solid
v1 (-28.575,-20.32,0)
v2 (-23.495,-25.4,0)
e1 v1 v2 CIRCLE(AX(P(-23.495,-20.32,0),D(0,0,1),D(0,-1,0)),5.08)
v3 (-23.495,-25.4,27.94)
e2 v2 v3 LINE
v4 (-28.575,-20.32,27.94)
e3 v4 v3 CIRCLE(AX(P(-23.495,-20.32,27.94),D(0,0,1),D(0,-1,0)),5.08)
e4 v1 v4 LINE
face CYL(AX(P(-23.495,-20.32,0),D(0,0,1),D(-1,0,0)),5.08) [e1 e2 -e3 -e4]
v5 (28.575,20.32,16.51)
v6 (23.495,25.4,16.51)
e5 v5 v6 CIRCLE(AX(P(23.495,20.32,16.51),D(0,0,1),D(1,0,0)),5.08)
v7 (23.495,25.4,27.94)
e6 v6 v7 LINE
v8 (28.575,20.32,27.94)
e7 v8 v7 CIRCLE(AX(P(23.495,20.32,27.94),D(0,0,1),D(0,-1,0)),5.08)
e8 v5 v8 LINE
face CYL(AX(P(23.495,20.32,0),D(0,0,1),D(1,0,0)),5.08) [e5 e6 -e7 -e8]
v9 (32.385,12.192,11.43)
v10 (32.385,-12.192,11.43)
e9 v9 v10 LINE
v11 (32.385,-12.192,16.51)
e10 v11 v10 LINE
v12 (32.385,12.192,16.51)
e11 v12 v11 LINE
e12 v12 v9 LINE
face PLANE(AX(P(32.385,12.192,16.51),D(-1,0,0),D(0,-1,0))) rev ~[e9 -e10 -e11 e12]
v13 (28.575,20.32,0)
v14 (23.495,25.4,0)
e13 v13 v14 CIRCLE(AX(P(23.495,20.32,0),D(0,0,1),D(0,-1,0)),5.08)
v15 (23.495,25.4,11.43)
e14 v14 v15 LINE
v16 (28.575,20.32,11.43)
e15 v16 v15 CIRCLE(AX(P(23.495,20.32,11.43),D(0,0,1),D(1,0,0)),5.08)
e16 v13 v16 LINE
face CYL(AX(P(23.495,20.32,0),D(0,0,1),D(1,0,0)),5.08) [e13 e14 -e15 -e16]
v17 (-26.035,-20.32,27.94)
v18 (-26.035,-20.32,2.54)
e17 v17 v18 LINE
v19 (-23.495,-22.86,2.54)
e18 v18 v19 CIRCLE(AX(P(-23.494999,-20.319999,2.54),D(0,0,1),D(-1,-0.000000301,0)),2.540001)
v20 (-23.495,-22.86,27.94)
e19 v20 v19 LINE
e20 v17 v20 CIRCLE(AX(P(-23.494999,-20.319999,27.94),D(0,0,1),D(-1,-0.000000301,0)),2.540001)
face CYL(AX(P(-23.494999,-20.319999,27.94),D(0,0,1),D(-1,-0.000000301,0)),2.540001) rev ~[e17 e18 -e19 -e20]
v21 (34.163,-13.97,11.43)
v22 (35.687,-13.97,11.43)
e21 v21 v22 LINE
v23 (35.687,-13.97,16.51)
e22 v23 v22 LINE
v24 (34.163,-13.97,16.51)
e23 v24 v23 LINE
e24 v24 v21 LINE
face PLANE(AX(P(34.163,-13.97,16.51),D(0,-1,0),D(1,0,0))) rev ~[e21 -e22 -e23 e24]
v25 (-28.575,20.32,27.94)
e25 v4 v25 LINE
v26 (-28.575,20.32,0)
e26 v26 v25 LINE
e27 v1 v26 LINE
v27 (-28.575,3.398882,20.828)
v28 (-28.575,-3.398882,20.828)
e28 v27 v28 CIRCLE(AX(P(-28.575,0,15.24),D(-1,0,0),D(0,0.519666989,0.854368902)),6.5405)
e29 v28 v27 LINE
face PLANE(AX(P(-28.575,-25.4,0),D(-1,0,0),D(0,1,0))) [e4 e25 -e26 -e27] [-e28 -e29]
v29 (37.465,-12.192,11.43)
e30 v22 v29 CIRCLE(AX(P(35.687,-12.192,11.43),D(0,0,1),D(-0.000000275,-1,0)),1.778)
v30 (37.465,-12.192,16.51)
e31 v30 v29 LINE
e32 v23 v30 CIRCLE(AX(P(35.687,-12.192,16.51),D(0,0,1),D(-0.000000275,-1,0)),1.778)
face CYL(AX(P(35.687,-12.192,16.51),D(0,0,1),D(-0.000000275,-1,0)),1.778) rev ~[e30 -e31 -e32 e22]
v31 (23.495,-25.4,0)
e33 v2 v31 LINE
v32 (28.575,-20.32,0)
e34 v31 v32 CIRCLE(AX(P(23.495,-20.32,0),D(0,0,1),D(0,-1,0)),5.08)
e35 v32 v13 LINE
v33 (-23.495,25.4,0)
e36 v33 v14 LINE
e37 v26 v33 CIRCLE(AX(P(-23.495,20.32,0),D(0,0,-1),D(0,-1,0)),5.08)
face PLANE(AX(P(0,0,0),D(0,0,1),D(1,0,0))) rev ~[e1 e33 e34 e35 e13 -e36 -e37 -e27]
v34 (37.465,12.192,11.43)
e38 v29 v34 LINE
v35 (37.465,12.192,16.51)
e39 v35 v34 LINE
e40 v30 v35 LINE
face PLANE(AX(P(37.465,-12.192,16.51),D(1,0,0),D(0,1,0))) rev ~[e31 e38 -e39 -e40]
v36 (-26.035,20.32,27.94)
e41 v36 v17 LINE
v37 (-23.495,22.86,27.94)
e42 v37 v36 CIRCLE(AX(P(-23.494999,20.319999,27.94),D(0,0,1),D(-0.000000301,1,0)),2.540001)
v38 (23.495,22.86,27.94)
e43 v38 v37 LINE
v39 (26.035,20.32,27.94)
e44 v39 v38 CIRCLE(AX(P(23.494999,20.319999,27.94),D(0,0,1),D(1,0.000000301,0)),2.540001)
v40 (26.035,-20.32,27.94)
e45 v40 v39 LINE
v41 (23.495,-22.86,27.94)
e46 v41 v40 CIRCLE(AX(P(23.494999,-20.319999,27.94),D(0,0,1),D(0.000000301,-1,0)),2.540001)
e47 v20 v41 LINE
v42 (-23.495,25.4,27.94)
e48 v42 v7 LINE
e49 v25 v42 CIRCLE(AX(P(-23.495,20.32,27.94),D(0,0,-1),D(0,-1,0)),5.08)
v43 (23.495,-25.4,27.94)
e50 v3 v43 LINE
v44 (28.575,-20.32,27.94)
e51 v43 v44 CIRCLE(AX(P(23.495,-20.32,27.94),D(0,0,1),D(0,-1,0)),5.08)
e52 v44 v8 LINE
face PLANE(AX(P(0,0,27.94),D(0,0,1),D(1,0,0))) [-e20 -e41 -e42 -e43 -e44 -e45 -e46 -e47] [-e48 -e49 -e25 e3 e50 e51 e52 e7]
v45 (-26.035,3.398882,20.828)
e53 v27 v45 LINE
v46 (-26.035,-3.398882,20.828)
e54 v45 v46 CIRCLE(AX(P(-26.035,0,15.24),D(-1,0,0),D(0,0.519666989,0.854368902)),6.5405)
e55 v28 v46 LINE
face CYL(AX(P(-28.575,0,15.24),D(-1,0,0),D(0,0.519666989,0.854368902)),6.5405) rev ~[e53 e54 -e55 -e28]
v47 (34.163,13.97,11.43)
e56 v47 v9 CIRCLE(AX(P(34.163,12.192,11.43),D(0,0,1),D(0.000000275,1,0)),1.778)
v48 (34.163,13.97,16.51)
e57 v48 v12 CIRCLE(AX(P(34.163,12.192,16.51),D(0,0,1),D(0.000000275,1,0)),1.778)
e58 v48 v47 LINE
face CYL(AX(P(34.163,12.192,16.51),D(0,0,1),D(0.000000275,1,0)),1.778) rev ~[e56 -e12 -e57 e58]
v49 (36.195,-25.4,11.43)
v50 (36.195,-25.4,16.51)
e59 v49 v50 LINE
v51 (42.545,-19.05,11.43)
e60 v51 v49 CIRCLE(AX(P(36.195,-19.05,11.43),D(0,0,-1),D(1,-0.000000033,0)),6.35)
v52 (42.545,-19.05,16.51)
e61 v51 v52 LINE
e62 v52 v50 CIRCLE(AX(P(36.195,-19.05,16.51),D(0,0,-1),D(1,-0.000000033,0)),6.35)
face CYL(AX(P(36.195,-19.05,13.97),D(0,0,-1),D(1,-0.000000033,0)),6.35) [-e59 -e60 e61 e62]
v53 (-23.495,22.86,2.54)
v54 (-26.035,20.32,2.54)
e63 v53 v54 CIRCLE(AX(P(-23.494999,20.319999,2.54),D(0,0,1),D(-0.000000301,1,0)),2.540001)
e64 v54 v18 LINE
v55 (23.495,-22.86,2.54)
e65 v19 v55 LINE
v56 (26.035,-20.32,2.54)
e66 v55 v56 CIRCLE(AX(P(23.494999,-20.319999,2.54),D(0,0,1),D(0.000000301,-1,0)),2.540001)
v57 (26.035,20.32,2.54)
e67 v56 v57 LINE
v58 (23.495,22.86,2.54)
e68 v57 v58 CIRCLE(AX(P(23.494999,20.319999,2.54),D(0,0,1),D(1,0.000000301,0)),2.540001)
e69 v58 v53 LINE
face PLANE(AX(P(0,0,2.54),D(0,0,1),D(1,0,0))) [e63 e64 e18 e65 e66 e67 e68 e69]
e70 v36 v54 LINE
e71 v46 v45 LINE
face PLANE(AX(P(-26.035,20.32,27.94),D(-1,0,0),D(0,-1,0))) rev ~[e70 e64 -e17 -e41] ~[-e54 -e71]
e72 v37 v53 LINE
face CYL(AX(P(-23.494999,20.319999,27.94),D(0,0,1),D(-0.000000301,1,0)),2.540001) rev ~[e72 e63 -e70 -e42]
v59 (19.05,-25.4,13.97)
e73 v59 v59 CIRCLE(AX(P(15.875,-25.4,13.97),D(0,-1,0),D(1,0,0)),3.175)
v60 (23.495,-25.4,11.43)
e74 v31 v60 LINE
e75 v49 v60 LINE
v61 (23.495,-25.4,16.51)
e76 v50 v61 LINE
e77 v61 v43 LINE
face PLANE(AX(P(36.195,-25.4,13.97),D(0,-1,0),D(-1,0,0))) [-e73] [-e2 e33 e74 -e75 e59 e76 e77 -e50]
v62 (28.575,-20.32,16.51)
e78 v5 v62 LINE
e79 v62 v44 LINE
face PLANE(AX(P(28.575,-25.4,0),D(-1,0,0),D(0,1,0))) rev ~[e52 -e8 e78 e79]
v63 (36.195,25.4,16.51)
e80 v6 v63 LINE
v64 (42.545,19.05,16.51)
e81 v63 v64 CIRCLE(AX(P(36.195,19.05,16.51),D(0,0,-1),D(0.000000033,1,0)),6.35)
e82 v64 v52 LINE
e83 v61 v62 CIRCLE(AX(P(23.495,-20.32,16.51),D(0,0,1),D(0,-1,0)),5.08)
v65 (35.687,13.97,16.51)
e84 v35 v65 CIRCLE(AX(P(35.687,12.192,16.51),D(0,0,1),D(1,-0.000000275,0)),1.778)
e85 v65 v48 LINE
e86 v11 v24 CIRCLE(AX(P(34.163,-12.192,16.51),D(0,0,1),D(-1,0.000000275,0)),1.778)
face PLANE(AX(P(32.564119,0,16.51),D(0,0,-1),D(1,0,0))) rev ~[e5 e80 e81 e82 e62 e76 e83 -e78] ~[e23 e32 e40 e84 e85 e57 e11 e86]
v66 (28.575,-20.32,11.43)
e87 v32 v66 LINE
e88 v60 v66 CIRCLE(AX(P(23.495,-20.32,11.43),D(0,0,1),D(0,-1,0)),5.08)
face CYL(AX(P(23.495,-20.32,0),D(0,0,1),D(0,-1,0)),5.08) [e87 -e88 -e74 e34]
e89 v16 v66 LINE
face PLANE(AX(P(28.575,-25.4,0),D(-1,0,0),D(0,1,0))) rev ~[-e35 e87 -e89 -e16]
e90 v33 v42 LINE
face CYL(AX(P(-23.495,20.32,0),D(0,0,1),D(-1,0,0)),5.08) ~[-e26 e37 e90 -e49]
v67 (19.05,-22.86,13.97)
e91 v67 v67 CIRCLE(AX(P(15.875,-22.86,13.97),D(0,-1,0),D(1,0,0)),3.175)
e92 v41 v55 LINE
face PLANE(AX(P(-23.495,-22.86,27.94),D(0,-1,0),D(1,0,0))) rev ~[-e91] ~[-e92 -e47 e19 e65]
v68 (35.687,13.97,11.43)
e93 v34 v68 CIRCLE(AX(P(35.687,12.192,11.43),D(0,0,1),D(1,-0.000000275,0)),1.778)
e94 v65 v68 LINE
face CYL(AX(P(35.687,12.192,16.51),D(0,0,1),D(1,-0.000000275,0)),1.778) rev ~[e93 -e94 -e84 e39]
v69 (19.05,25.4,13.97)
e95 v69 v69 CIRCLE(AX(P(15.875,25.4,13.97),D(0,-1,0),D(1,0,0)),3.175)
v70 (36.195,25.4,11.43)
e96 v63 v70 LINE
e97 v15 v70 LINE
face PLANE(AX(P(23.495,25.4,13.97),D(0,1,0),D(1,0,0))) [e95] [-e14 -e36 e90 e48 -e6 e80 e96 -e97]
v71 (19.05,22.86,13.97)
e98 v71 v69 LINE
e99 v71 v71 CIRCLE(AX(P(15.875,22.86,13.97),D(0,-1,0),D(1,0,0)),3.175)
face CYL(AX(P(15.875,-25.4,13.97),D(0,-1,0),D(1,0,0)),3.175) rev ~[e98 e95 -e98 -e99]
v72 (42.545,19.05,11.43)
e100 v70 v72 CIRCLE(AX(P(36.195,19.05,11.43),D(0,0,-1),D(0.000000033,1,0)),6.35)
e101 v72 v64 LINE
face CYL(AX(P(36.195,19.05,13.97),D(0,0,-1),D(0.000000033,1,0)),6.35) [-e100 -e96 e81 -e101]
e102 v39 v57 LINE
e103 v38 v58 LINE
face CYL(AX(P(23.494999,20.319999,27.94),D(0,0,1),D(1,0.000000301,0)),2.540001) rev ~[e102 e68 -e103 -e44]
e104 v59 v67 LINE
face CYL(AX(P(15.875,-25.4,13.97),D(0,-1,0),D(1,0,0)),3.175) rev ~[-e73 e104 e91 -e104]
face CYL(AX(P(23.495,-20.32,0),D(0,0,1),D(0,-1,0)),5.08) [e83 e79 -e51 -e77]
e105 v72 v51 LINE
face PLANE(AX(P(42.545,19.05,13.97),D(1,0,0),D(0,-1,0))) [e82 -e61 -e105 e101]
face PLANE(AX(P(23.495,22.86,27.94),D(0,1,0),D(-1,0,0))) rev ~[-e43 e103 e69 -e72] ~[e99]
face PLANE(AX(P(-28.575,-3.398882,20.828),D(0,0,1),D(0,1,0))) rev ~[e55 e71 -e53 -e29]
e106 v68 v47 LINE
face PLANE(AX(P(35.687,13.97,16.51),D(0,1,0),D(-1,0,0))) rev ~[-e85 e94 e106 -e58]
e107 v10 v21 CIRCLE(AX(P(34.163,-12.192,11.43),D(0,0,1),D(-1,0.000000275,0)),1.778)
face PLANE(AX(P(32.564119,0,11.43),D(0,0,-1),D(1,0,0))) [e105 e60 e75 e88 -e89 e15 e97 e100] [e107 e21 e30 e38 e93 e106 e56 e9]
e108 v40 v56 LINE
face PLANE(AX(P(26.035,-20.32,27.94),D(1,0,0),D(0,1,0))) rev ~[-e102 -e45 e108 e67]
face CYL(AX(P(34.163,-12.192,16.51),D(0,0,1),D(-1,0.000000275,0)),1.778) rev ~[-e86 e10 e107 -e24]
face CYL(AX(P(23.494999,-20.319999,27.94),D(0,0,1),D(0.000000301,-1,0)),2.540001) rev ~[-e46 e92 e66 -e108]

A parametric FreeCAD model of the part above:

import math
import FreeCAD as App
import Part
import Sketcher
Q = App.Units.Quantity


def edges_at(feature, points):
    """Names of the edges that pass closest to the given points."""
    edges = feature.Shape.Edges
    near = lambda p: min(range(len(edges)), key=lambda i: edges[i].distToShape(Part.Vertex(*p))[0])
    return sorted({f"Edge{near(p) + 1}" for p in points})

doc = App.newDocument("Part")
params = doc.addObject("Spreadsheet::Sheet", "Params")
for row, (alias, value) in enumerate([
    ("sketch1_height", "2 in"),
    ("sketch1_width", "2.25 in"),
    ("pad1_length", "1.1 in"),
    ("fillet_radius", "0.2 in"),
    ("sketch2_height", "2 in"),
    ("sketch2_radius", "0.25 in"),
    ("sketch2_width", "0.5 in"),
    ("pad2_length", "0.2 in"),
    ("sketch3_radius", "0.1 in"),
    ("sketch3_height", "1.6 in"),
    ("sketch3_width", "1.85 in"),
    ("pocket1_length", "1 in"),
    ("pocket2_length", "0.1 in"),
    ("sketch5_diameter", "0.25 in"),
    ("sketch6_radius", "0.07 in"),
    ("sketch6_width", "0.06 in"),
    ("sketch6_height", "0.96 in"),
], start=1):
    params.set(f"A{row}", alias)
    params.set(f"B{row}", "=" + value)
    params.setAlias(f"B{row}", alias)

body = doc.addObject("PartDesign::Body", "Body")

# Sketch on XY plane
sketch1 = body.newObject("Sketcher::SketchObject", "Sketch")
sketch1.AttachmentSupport = (doc.getObject("XY_Plane"), [""])
sketch1.MapMode = "FlatFace"
sketch1.addGeometry(Part.LineSegment(App.Vector(-29, 25, 0), App.Vector(-29, -25, 0)), False)
sketch1.addGeometry(Part.LineSegment(App.Vector(-29, -25, 0), App.Vector(29, -25, 0)), False)
sketch1.addGeometry(Part.LineSegment(App.Vector(29, -25, 0), App.Vector(29, 25, 0)), False)
sketch1.addGeometry(Part.LineSegment(App.Vector(29, 25, 0), App.Vector(-29, 25, 0)), False)
sketch1.addConstraint(Sketcher.Constraint("Coincident", 0, 2, 1, 1))
sketch1.addConstraint(Sketcher.Constraint("Coincident", 1, 2, 2, 1))
sketch1.addConstraint(Sketcher.Constraint("Coincident", 2, 2, 3, 1))
sketch1.addConstraint(Sketcher.Constraint("Coincident", 3, 2, 0, 1))
sketch1.addConstraint(Sketcher.Constraint("Vertical", 0))
sketch1.addConstraint(Sketcher.Constraint("Horizontal", 1))
sketch1.addConstraint(Sketcher.Constraint("Vertical", 2))
sketch1.addConstraint(Sketcher.Constraint("Horizontal", 3))
sketch1.addConstraint(Sketcher.Constraint("Symmetric", 0, 2, 2, 2, -1, 1))
sketch1.addConstraint(Sketcher.Constraint("DistanceY", 0, 2, 0, 1, Q("2 in")))
sketch1.addConstraint(Sketcher.Constraint("DistanceX", 1, 1, 1, 2, Q("2.25 in")))
sketch1.setExpression("Constraints[9]", "Params.sketch1_height")
sketch1.setExpression("Constraints[10]", "Params.sketch1_width")
pad1 = body.newObject("PartDesign::Pad", "Pad")
pad1.Profile = sketch1
pad1.setExpression("Length", "Params.pad1_length")
doc.recompute()

fillet = body.newObject("PartDesign::Fillet", "Fillet")
fillet.Base = (pad1, edges_at(pad1, [
    (-28.575, 25.4, 13.97),
    (28.575, 25.4, 13.97),
    (28.575, -25.4, 13.97),
    (-28.575, -25.4, 13.97),
]))
fillet.setExpression("Radius", "Params.fillet_radius")

# Sketch on XY plane
sketch2 = body.newObject("Sketcher::SketchObject", "Sketch001")
sketch2.AttachmentSupport = (doc.getObject("XY_Plane"), [""])
sketch2.MapMode = "FlatFace"
sketch2.AttachmentOffset = App.Placement(App.Vector(0, 0, 0.55 * 25.4), App.Rotation())
sketch2.addGeometry(Part.LineSegment(App.Vector(36, -25, 0), App.Vector(23, -25, 0)), False)
sketch2.addGeometry(Part.LineSegment(App.Vector(23, -25, 0), App.Vector(23, 25, 0)), False)
sketch2.addGeometry(Part.LineSegment(App.Vector(23, 25, 0), App.Vector(36, 25, 0)), False)
sketch2.addGeometry(Part.ArcOfCircle(Part.Circle(App.Vector(36, 19, 0), App.Vector(0, 0, 1), 6), math.radians(0), math.radians(90)), False)
sketch2.addGeometry(Part.LineSegment(App.Vector(43, 19, 0), App.Vector(43, -19, 0)), False)
sketch2.addGeometry(Part.ArcOfCircle(Part.Circle(App.Vector(36, -19, 0), App.Vector(0, 0, 1), 6), math.radians(-90), math.radians(0)), False)
sketch2.addConstraint(Sketcher.Constraint("Coincident", 0, 2, 1, 1))
sketch2.addConstraint(Sketcher.Constraint("Coincident", 1, 2, 2, 1))
sketch2.addConstraint(Sketcher.Constraint("Tangent", 2, 2, 3, 2))
sketch2.addConstraint(Sketcher.Constraint("Tangent", 3, 1, 4, 1))
sketch2.addConstraint(Sketcher.Constraint("Tangent", 4, 2, 5, 2))
sketch2.addConstraint(Sketcher.Constraint("Tangent", 5, 1, 0, 1))
sketch2.addConstraint(Sketcher.Constraint("Horizontal", 0))
sketch2.addConstraint(Sketcher.Constraint("Vertical", 1))
sketch2.addConstraint(Sketcher.Constraint("Horizontal", 2))
sketch2.addConstraint(Sketcher.Constraint("Vertical", 4))
sketch2.addConstraint(Sketcher.Constraint("Equal", 3, 5))
sketch2.addConstraint(Sketcher.Constraint("DistanceY", 1, 1, 1, 2, Q("2 in")))
sketch2.addConstraint(Sketcher.Constraint("Radius", 3, Q("0.25 in")))
sketch2.addConstraint(Sketcher.Constraint("DistanceX", 0, 2, 0, 1, Q("0.5 in")))
sketch2.addConstraint(Sketcher.Constraint("DistanceY", 0, 2, -1, 1, Q("1 in")))
sketch2.addConstraint(Sketcher.Constraint("DistanceX", -1, 1, 3, 3, Q("1.425 in")))
sketch2.setExpression("Constraints[11]", "Params.sketch2_height")
sketch2.setExpression("Constraints[12]", "Params.sketch2_radius")
sketch2.setExpression("Constraints[13]", "Params.sketch2_width")
pad2 = body.newObject("PartDesign::Pad", "Pad001")
pad2.Profile = sketch2
pad2.setExpression("Length", "Params.pad2_length")
pad2.Midplane = True

# Sketch on XY plane
sketch3 = body.newObject("Sketcher::SketchObject", "Sketch002")
sketch3.AttachmentSupport = (doc.getObject("XY_Plane"), [""])
sketch3.MapMode = "FlatFace"
sketch3.AttachmentOffset = App.Placement(App.Vector(0, 0, 1.1 * 25.4), App.Rotation())
sketch3.addGeometry(Part.ArcOfCircle(Part.Circle(App.Vector(-23.5, -20.3, 0), App.Vector(0, 0, 1), 2.5), math.radians(-180), math.radians(-90)), False)
sketch3.addGeometry(Part.LineSegment(App.Vector(-23.5, -22.9, 0), App.Vector(23.5, -22.9, 0)), False)
sketch3.addGeometry(Part.ArcOfCircle(Part.Circle(App.Vector(23.5, -20.3, 0), App.Vector(0, 0, 1), 2.5), math.radians(-90), math.radians(0)), False)
sketch3.addGeometry(Part.LineSegment(App.Vector(26, -20.3, 0), App.Vector(26, 20.3, 0)), False)
sketch3.addGeometry(Part.ArcOfCircle(Part.Circle(App.Vector(23.5, 20.3, 0), App.Vector(0, 0, 1), 2.5), math.radians(0), math.radians(90)), False)
sketch3.addGeometry(Part.LineSegment(App.Vector(23.5, 22.9, 0), App.Vector(-23.5, 22.9, 0)), False)
sketch3.addGeometry(Part.ArcOfCircle(Part.Circle(App.Vector(-23.5, 20.3, 0), App.Vector(0, 0, 1), 2.5), math.radians(90), math.radians(180)), False)
sketch3.addGeometry(Part.LineSegment(App.Vector(-26, 20.3, 0), App.Vector(-26, -20.3, 0)), False)
sketch3.addConstraint(Sketcher.Constraint("Tangent", 0, 2, 1, 1))
sketch3.addConstraint(Sketcher.Constraint("Tangent", 1, 2, 2, 1))
sketch3.addConstraint(Sketcher.Constraint("Tangent", 2, 2, 3, 1))
sketch3.addConstraint(Sketcher.Constraint("Tangent", 3, 2, 4, 1))
sketch3.addConstraint(Sketcher.Constraint("Tangent", 4, 2, 5, 1))
sketch3.addConstraint(Sketcher.Constraint("Tangent", 5, 2, 6, 1))
sketch3.addConstraint(Sketcher.Constraint("Tangent", 6, 2, 7, 1))
sketch3.addConstraint(Sketcher.Constraint("Tangent", 7, 2, 0, 1))
sketch3.addConstraint(Sketcher.Constraint("Horizontal", 1))
sketch3.addConstraint(Sketcher.Constraint("Vertical", 3))
sketch3.addConstraint(Sketcher.Constraint("Horizontal", 5))
sketch3.addConstraint(Sketcher.Constraint("Vertical", 7))
sketch3.addConstraint(Sketcher.Constraint("Equal", 0, 2))
sketch3.addConstraint(Sketcher.Constraint("Equal", 2, 4))
sketch3.addConstraint(Sketcher.Constraint("Equal", 4, 6))
sketch3.addConstraint(Sketcher.Constraint("Symmetric", 0, 3, 4, 3, -1, 1))
sketch3.addConstraint(Sketcher.Constraint("Radius", 0, Q("0.1 in")))
sketch3.addConstraint(Sketcher.Constraint("DistanceY", 3, 1, 3, 2, Q("1.6 in")))
sketch3.addConstraint(Sketcher.Constraint("DistanceX", 1, 1, 1, 2, Q("1.85 in")))
sketch3.setExpression("Constraints[16]", "Params.sketch3_radius")
sketch3.setExpression("Constraints[17]", "Params.sketch3_height")
sketch3.setExpression("Constraints[18]", "Params.sketch3_width")
pocket1 = body.newObject("PartDesign::Pocket", "Pocket")
pocket1.Profile = sketch3
pocket1.setExpression("Length", "Params.pocket1_length")

# Sketch on YZ plane
sketch4 = body.newObject("Sketcher::SketchObject", "Sketch003")
sketch4.AttachmentSupport = (doc.getObject("YZ_Plane"), [""])
sketch4.MapMode = "FlatFace"
sketch4.AttachmentOffset = App.Placement(App.Vector(0, 0, -1.125 * 25.4), App.Rotation())
sketch4.addGeometry(Part.LineSegment(App.Vector(-3, 21, 0), App.Vector(3, 21, 0)), False)
sketch4.addGeometry(Part.ArcOfCircle(Part.Circle(App.Vector(0, 15, 0), App.Vector(0, 0, 1), 7), math.radians(121), math.radians(419)), False)
sketch4.addConstraint(Sketcher.Constraint("Coincident", 0, 1, 1, 1))
sketch4.addConstraint(Sketcher.Constraint("Coincident", 1, 2, 0, 2))
sketch4.addConstraint(Sketcher.Constraint("Horizontal", 0))
sketch4.addConstraint(Sketcher.Constraint("PointOnObject", 1, 3, -2))
sketch4.addConstraint(Sketcher.Constraint("DistanceY", -1, 1, 1, 3, Q("0.6 in")))
sketch4.addConstraint(Sketcher.Constraint("Radius", 1, Q("0.2575 in")))
sketch4.addConstraint(Sketcher.Constraint("DistanceY", -1, 1, 0, 1, Q("0.82 in")))
pocket2 = body.newObject("PartDesign::Pocket", "Pocket001")
pocket2.Profile = sketch4
pocket2.setExpression("Length", "Params.pocket2_length")
pocket2.Reversed = True

# Sketch on XZ plane
sketch5 = body.newObject("Sketcher::SketchObject", "Sketch004")
sketch5.AttachmentSupport = (doc.getObject("XZ_Plane"), [""])
sketch5.MapMode = "FlatFace"
sketch5.AttachmentOffset = App.Placement(App.Vector(0, 0, 1 * 25.4), App.Rotation())
sketch5.addGeometry(Part.Circle(App.Vector(15.9, 14, 0), App.Vector(0, 0, 1), 3.2), False)
sketch5.addConstraint(Sketcher.Constraint("Diameter", 0, Q("0.25 in")))
sketch5.addConstraint(Sketcher.Constraint("DistanceY", -1, 1, 0, 3, Q("0.55 in")))
sketch5.addConstraint(Sketcher.Constraint("DistanceX", -1, 1, 0, 3, Q("0.625 in")))
sketch5.setExpression("Constraints[0]", "Params.sketch5_diameter")
pocket3 = body.newObject("PartDesign::Pocket", "Pocket002")
pocket3.Profile = sketch5
pocket3.Type = "ThroughAll"

# Sketch on XY plane
sketch6 = body.newObject("Sketcher::SketchObject", "Sketch005")
sketch6.AttachmentSupport = (doc.getObject("XY_Plane"), [""])
sketch6.MapMode = "FlatFace"
sketch6.AttachmentOffset = App.Placement(App.Vector(0, 0, 0.65 * 25.4), App.Rotation())
sketch6.addGeometry(Part.LineSegment(App.Vector(35.7, 14, 0), App.Vector(34.2, 14, 0)), False)
sketch6.addGeometry(Part.ArcOfCircle(Part.Circle(App.Vector(34.2, 12.2, 0), App.Vector(0, 0, 1), 1.8), math.radians(90), math.radians(180)), False)
sketch6.addGeometry(Part.LineSegment(App.Vector(32.4, 12.2, 0), App.Vector(32.4, -12.2, 0)), False)
sketch6.addGeometry(Part.ArcOfCircle(Part.Circle(App.Vector(34.2, -12.2, 0), App.Vector(0, 0, 1), 1.8), math.radians(180), math.radians(270)), False)
sketch6.addGeometry(Part.LineSegment(App.Vector(34.2, -14, 0), App.Vector(35.7, -14, 0)), False)
sketch6.addGeometry(Part.ArcOfCircle(Part.Circle(App.Vector(35.7, -12.2, 0), App.Vector(0, 0, 1), 1.8), math.radians(-90), math.radians(0)), False)
sketch6.addGeometry(Part.LineSegment(App.Vector(37.5, -12.2, 0), App.Vector(37.5, 12.2, 0)), False)
sketch6.addGeometry(Part.ArcOfCircle(Part.Circle(App.Vector(35.7, 12.2, 0), App.Vector(0, 0, 1), 1.8), math.radians(0), math.radians(90)), False)
sketch6.addConstraint(Sketcher.Constraint("Tangent", 0, 2, 1, 1))
sketch6.addConstraint(Sketcher.Constraint("Tangent", 1, 2, 2, 1))
sketch6.addConstraint(Sketcher.Constraint("Tangent", 2, 2, 3, 1))
sketch6.addConstraint(Sketcher.Constraint("Tangent", 3, 2, 4, 1))
sketch6.addConstraint(Sketcher.Constraint("Tangent", 4, 2, 5, 1))
sketch6.addConstraint(Sketcher.Constraint("Tangent", 5, 2, 6, 1))
sketch6.addConstraint(Sketcher.Constraint("Tangent", 6, 2, 7, 1))
sketch6.addConstraint(Sketcher.Constraint("Tangent", 7, 2, 0, 1))
sketch6.addConstraint(Sketcher.Constraint("Horizontal", 0))
sketch6.addConstraint(Sketcher.Constraint("Vertical", 2))
sketch6.addConstraint(Sketcher.Constraint("Horizontal", 4))
sketch6.addConstraint(Sketcher.Constraint("Vertical", 6))
sketch6.addConstraint(Sketcher.Constraint("Equal", 1, 3))
sketch6.addConstraint(Sketcher.Constraint("Equal", 3, 5))
sketch6.addConstraint(Sketcher.Constraint("Equal", 5, 7))
sketch6.addConstraint(Sketcher.Constraint("Radius", 1, Q("0.07 in")))
sketch6.addConstraint(Sketcher.Constraint("DistanceX", 0, 2, 0, 1, Q("0.06 in")))
sketch6.addConstraint(Sketcher.Constraint("DistanceY", 2, 2, 2, 1, Q("0.96 in")))
sketch6.addConstraint(Sketcher.Constraint("DistanceY", -1, 1, 1, 3, Q("0.48 in")))
sketch6.addConstraint(Sketcher.Constraint("DistanceX", -1, 1, 1, 3, Q("1.345 in")))
sketch6.setExpression("Constraints[15]", "Params.sketch6_radius")
sketch6.setExpression("Constraints[16]", "Params.sketch6_width")
sketch6.setExpression("Constraints[17]", "Params.sketch6_height")
pocket4 = body.newObject("PartDesign::Pocket", "Pocket003")
pocket4.Profile = sketch6
pocket4.Type = "ThroughAll"

doc.recompute()
